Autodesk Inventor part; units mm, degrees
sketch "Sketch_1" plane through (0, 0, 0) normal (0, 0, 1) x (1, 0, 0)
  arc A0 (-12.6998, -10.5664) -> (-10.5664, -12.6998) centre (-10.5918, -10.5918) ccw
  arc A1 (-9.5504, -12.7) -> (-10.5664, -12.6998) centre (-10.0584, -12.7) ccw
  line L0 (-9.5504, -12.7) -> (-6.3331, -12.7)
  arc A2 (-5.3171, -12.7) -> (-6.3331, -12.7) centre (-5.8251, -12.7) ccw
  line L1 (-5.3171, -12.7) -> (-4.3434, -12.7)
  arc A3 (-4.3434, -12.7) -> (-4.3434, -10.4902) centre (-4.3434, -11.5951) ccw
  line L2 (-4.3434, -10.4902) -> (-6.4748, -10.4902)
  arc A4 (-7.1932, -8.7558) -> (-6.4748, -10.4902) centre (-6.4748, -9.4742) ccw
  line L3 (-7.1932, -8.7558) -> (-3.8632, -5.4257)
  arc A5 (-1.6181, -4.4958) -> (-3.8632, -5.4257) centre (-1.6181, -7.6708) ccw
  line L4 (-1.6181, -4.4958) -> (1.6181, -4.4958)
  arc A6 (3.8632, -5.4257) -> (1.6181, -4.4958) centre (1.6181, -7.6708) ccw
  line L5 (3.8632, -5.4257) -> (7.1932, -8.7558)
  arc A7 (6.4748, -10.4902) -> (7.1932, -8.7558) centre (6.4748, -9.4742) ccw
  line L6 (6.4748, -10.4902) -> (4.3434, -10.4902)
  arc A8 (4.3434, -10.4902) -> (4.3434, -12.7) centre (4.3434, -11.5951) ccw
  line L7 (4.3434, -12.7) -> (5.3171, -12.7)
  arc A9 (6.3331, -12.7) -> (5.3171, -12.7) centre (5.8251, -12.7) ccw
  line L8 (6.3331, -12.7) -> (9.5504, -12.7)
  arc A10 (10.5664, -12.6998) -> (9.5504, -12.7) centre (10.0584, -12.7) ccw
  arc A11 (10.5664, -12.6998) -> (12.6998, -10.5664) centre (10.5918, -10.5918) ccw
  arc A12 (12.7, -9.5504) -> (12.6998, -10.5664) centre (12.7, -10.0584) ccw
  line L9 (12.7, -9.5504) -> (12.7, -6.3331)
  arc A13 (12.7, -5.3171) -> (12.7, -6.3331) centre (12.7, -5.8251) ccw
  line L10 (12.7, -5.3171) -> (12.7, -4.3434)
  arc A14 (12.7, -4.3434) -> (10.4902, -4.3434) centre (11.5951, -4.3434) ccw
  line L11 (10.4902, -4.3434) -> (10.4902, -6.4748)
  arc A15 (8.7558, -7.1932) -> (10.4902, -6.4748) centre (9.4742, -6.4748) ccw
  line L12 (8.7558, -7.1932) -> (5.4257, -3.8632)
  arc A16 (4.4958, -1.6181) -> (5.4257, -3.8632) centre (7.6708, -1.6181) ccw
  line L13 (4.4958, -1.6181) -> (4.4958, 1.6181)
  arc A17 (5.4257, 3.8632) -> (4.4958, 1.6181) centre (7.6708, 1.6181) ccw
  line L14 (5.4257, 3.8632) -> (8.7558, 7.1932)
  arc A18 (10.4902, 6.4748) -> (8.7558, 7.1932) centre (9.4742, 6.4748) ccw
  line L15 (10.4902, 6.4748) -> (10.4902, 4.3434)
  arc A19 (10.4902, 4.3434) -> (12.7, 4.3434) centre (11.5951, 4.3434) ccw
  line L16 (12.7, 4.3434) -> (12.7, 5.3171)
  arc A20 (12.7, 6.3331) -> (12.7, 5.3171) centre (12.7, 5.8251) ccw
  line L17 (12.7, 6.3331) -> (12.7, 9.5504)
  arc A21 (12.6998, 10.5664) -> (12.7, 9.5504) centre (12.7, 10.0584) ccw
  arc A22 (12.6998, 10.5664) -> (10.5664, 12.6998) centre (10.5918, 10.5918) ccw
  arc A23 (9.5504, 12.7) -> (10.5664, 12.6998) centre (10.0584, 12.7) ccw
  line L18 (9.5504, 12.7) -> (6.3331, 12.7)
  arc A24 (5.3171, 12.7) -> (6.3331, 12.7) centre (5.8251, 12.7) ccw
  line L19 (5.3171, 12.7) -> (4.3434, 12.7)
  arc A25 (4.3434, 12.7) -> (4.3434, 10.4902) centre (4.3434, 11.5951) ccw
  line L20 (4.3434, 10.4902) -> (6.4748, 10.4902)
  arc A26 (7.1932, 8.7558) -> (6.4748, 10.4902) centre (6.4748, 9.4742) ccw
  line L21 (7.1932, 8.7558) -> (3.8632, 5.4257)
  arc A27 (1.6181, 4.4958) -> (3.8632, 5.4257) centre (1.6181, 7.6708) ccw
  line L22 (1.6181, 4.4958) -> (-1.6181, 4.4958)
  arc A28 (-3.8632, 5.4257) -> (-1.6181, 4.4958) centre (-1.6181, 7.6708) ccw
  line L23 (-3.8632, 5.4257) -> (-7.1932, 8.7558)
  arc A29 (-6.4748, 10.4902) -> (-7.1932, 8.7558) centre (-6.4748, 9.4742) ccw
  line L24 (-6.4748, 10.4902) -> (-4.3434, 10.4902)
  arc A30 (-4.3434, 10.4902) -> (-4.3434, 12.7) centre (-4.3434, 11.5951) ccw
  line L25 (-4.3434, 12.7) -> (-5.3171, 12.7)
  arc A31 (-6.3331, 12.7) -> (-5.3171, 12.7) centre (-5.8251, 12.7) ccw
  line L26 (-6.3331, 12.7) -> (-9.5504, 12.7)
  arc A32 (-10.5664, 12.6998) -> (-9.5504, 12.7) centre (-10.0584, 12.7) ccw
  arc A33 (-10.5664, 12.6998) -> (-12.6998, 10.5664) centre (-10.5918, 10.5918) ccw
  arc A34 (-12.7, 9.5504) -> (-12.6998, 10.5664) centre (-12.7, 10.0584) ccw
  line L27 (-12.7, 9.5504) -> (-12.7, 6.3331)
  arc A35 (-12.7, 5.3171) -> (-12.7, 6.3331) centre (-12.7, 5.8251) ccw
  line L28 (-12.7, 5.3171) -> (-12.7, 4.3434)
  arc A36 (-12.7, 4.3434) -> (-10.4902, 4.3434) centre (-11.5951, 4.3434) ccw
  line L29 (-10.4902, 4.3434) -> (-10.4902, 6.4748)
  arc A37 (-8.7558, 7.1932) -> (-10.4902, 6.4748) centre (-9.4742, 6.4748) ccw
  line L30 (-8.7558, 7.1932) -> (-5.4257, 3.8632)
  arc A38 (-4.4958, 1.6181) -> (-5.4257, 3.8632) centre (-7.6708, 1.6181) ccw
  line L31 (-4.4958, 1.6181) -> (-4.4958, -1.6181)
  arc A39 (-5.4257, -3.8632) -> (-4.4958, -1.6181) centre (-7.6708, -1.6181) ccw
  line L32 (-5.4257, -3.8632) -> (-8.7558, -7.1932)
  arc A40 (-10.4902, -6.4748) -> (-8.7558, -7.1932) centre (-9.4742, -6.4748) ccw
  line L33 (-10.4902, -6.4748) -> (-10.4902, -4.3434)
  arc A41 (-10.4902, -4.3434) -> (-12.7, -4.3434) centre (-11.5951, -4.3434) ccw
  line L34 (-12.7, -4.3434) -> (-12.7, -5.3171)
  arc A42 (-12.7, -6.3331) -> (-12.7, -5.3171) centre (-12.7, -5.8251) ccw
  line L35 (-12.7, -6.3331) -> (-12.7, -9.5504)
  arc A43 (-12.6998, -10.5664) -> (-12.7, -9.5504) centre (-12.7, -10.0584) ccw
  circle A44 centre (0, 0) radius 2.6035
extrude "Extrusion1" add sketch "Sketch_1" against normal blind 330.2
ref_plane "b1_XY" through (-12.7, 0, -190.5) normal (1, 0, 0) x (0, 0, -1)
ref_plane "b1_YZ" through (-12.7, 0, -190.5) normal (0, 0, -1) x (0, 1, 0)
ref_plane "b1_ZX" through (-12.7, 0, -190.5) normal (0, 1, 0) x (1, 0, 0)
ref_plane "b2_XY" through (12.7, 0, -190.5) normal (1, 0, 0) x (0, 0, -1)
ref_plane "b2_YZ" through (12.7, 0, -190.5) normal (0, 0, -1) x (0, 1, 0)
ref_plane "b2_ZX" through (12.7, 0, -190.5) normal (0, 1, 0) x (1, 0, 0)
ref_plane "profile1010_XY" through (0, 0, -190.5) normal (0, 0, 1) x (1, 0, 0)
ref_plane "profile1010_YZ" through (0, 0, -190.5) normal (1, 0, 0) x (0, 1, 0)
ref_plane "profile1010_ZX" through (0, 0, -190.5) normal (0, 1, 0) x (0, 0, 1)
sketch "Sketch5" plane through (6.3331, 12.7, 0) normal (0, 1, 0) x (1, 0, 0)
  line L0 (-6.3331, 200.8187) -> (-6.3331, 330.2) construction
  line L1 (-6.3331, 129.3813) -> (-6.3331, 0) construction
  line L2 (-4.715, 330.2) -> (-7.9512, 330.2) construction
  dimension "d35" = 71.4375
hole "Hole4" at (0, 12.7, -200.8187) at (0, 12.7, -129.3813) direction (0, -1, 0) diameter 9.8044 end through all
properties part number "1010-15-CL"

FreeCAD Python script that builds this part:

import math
import FreeCAD as App
import Part
import Sketcher
Q = App.Units.Quantity

doc = App.newDocument("Part")
body = doc.addObject("PartDesign::Body", "Body")

# Sketch on XY plane
sketch1 = body.newObject("Sketcher::SketchObject", "Sketch")
sketch1.AttachmentSupport = (doc.getObject("XY_Plane"), [""])
sketch1.MapMode = "FlatFace"
sketch1.addGeometry(Part.ArcOfCircle(Part.Circle(App.Vector(-12.7, -10.1, 0), App.Vector(0, 0, 1), 0.5), math.radians(-90), math.radians(90)), False)
sketch1.addGeometry(Part.ArcOfCircle(Part.Circle(App.Vector(-10.6, -10.6, 0), App.Vector(0, 0, 1), 2.1), math.radians(179), math.radians(271)), False)
sketch1.addGeometry(Part.ArcOfCircle(Part.Circle(App.Vector(-10.1, -12.7, 0), App.Vector(0, 0, 1), 0.5), math.radians(0), math.radians(180)), False)
sketch1.addGeometry(Part.LineSegment(App.Vector(-9.6, -12.7, 0), App.Vector(-6.3, -12.7, 0)), False)
sketch1.addGeometry(Part.ArcOfCircle(Part.Circle(App.Vector(-5.8, -12.7, 0), App.Vector(0, 0, 1), 0.5), math.radians(0), math.radians(180)), False)
sketch1.addGeometry(Part.LineSegment(App.Vector(-5.3, -12.7, 0), App.Vector(-4.3, -12.7, 0)), False)
sketch1.addGeometry(Part.ArcOfCircle(Part.Circle(App.Vector(-4.3, -11.6, 0), App.Vector(0, 0, 1), 1.1), math.radians(-90), math.radians(90)), False)
sketch1.addGeometry(Part.LineSegment(App.Vector(-4.3, -10.5, 0), App.Vector(-6.5, -10.5, 0)), False)
sketch1.addGeometry(Part.ArcOfCircle(Part.Circle(App.Vector(-6.5, -9.5, 0), App.Vector(0, 0, 1), 1), math.radians(135), math.radians(270)), False)
sketch1.addGeometry(Part.LineSegment(App.Vector(-7.2, -8.8, 0), App.Vector(-3.9, -5.4, 0)), False)
sketch1.addGeometry(Part.ArcOfCircle(Part.Circle(App.Vector(-1.6, -7.7, 0), App.Vector(0, 0, 1), 3.2), math.radians(90), math.radians(135)), False)
sketch1.addGeometry(Part.LineSegment(App.Vector(-1.6, -4.5, 0), App.Vector(1.6, -4.5, 0)), False)
sketch1.addGeometry(Part.ArcOfCircle(Part.Circle(App.Vector(1.6, -7.7, 0), App.Vector(0, 0, 1), 3.2), math.radians(45), math.radians(90)), False)
sketch1.addGeometry(Part.LineSegment(App.Vector(3.9, -5.4, 0), App.Vector(7.2, -8.8, 0)), False)
sketch1.addGeometry(Part.ArcOfCircle(Part.Circle(App.Vector(6.5, -9.5, 0), App.Vector(0, 0, 1), 1), math.radians(-90), math.radians(45)), False)
sketch1.addGeometry(Part.LineSegment(App.Vector(6.5, -10.5, 0), App.Vector(4.3, -10.5, 0)), False)
sketch1.addGeometry(Part.ArcOfCircle(Part.Circle(App.Vector(4.3, -11.6, 0), App.Vector(0, 0, 1), 1.1), math.radians(90), math.radians(270)), False)
sketch1.addGeometry(Part.LineSegment(App.Vector(4.3, -12.7, 0), App.Vector(5.3, -12.7, 0)), False)
sketch1.addGeometry(Part.ArcOfCircle(Part.Circle(App.Vector(5.8, -12.7, 0), App.Vector(0, 0, 1), 0.5), math.radians(0), math.radians(180)), False)
sketch1.addGeometry(Part.LineSegment(App.Vector(6.3, -12.7, 0), App.Vector(9.6, -12.7, 0)), False)
sketch1.addGeometry(Part.ArcOfCircle(Part.Circle(App.Vector(10.1, -12.7, 0), App.Vector(0, 0, 1), 0.5), math.radians(0), math.radians(180)), False)
sketch1.addGeometry(Part.ArcOfCircle(Part.Circle(App.Vector(10.6, -10.6, 0), App.Vector(0, 0, 1), 2.1), math.radians(-91), math.radians(1)), False)
sketch1.addGeometry(Part.ArcOfCircle(Part.Circle(App.Vector(12.7, -10.1, 0), App.Vector(0, 0, 1), 0.5), math.radians(90), math.radians(270)), False)
sketch1.addGeometry(Part.LineSegment(App.Vector(12.7, -9.6, 0), App.Vector(12.7, -6.3, 0)), False)
sketch1.addGeometry(Part.ArcOfCircle(Part.Circle(App.Vector(12.7, -5.8, 0), App.Vector(0, 0, 1), 0.5), math.radians(90), math.radians(270)), False)
sketch1.addGeometry(Part.LineSegment(App.Vector(12.7, -5.3, 0), App.Vector(12.7, -4.3, 0)), False)
sketch1.addGeometry(Part.ArcOfCircle(Part.Circle(App.Vector(11.6, -4.3, 0), App.Vector(0, 0, 1), 1.1), math.radians(0), math.radians(180)), False)
sketch1.addGeometry(Part.LineSegment(App.Vector(10.5, -4.3, 0), App.Vector(10.5, -6.5, 0)), False)
sketch1.addGeometry(Part.ArcOfCircle(Part.Circle(App.Vector(9.5, -6.5, 0), App.Vector(0, 0, 1), 1), math.radians(-135), math.radians(0)), False)
sketch1.addGeometry(Part.LineSegment(App.Vector(8.8, -7.2, 0), App.Vector(5.4, -3.9, 0)), False)
sketch1.addGeometry(Part.ArcOfCircle(Part.Circle(App.Vector(7.7, -1.6, 0), App.Vector(0, 0, 1), 3.2), math.radians(180), math.radians(225)), False)
sketch1.addGeometry(Part.LineSegment(App.Vector(4.5, -1.6, 0), App.Vector(4.5, 1.6, 0)), False)
sketch1.addGeometry(Part.ArcOfCircle(Part.Circle(App.Vector(7.7, 1.6, 0), App.Vector(0, 0, 1), 3.2), math.radians(135), math.radians(180)), False)
sketch1.addGeometry(Part.LineSegment(App.Vector(5.4, 3.9, 0), App.Vector(8.8, 7.2, 0)), False)
sketch1.addGeometry(Part.ArcOfCircle(Part.Circle(App.Vector(9.5, 6.5, 0), App.Vector(0, 0, 1), 1), math.radians(0), math.radians(135)), False)
sketch1.addGeometry(Part.LineSegment(App.Vector(10.5, 6.5, 0), App.Vector(10.5, 4.3, 0)), False)
sketch1.addGeometry(Part.ArcOfCircle(Part.Circle(App.Vector(11.6, 4.3, 0), App.Vector(0, 0, 1), 1.1), math.radians(180), math.radians(360)), False)
sketch1.addGeometry(Part.LineSegment(App.Vector(12.7, 4.3, 0), App.Vector(12.7, 5.3, 0)), False)
sketch1.addGeometry(Part.ArcOfCircle(Part.Circle(App.Vector(12.7, 5.8, 0), App.Vector(0, 0, 1), 0.5), math.radians(90), math.radians(270)), False)
sketch1.addGeometry(Part.LineSegment(App.Vector(12.7, 6.3, 0), App.Vector(12.7, 9.6, 0)), False)
sketch1.addGeometry(Part.ArcOfCircle(Part.Circle(App.Vector(12.7, 10.1, 0), App.Vector(0, 0, 1), 0.5), math.radians(90), math.radians(270)), False)
sketch1.addGeometry(Part.ArcOfCircle(Part.Circle(App.Vector(10.6, 10.6, 0), App.Vector(0, 0, 1), 2.1), math.radians(-1), math.radians(91)), False)
sketch1.addGeometry(Part.ArcOfCircle(Part.Circle(App.Vector(10.1, 12.7, 0), App.Vector(0, 0, 1), 0.5), math.radians(180), math.radians(360)), False)
sketch1.addGeometry(Part.LineSegment(App.Vector(9.6, 12.7, 0), App.Vector(6.3, 12.7, 0)), False)
sketch1.addGeometry(Part.ArcOfCircle(Part.Circle(App.Vector(5.8, 12.7, 0), App.Vector(0, 0, 1), 0.5), math.radians(180), math.radians(360)), False)
sketch1.addGeometry(Part.LineSegment(App.Vector(5.3, 12.7, 0), App.Vector(4.3, 12.7, 0)), False)
sketch1.addGeometry(Part.ArcOfCircle(Part.Circle(App.Vector(4.3, 11.6, 0), App.Vector(0, 0, 1), 1.1), math.radians(90), math.radians(270)), False)
sketch1.addGeometry(Part.LineSegment(App.Vector(4.3, 10.5, 0), App.Vector(6.5, 10.5, 0)), False)
sketch1.addGeometry(Part.ArcOfCircle(Part.Circle(App.Vector(6.5, 9.5, 0), App.Vector(0, 0, 1), 1), math.radians(-45), math.radians(90)), False)
sketch1.addGeometry(Part.LineSegment(App.Vector(7.2, 8.8, 0), App.Vector(3.9, 5.4, 0)), False)
sketch1.addGeometry(Part.ArcOfCircle(Part.Circle(App.Vector(1.6, 7.7, 0), App.Vector(0, 0, 1), 3.2), math.radians(-90), math.radians(-45)), False)
sketch1.addGeometry(Part.LineSegment(App.Vector(1.6, 4.5, 0), App.Vector(-1.6, 4.5, 0)), False)
sketch1.addGeometry(Part.ArcOfCircle(Part.Circle(App.Vector(-1.6, 7.7, 0), App.Vector(0, 0, 1), 3.2), math.radians(-135), math.radians(-90)), False)
sketch1.addGeometry(Part.LineSegment(App.Vector(-3.9, 5.4, 0), App.Vector(-7.2, 8.8, 0)), False)
sketch1.addGeometry(Part.ArcOfCircle(Part.Circle(App.Vector(-6.5, 9.5, 0), App.Vector(0, 0, 1), 1), math.radians(90), math.radians(225)), False)
sketch1.addGeometry(Part.LineSegment(App.Vector(-6.5, 10.5, 0), App.Vector(-4.3, 10.5, 0)), False)
sketch1.addGeometry(Part.ArcOfCircle(Part.Circle(App.Vector(-4.3, 11.6, 0), App.Vector(0, 0, 1), 1.1), math.radians(-90), math.radians(90)), False)
sketch1.addGeometry(Part.LineSegment(App.Vector(-4.3, 12.7, 0), App.Vector(-5.3, 12.7, 0)), False)
sketch1.addGeometry(Part.ArcOfCircle(Part.Circle(App.Vector(-5.8, 12.7, 0), App.Vector(0, 0, 1), 0.5), math.radians(180), math.radians(360)), False)
sketch1.addGeometry(Part.LineSegment(App.Vector(-6.3, 12.7, 0), App.Vector(-9.6, 12.7, 0)), False)
sketch1.addGeometry(Part.ArcOfCircle(Part.Circle(App.Vector(-10.1, 12.7, 0), App.Vector(0, 0, 1), 0.5), math.radians(-180), math.radians(0)), False)
sketch1.addGeometry(Part.ArcOfCircle(Part.Circle(App.Vector(-10.6, 10.6, 0), App.Vector(0, 0, 1), 2.1), math.radians(89), math.radians(181)), False)
sketch1.addGeometry(Part.ArcOfCircle(Part.Circle(App.Vector(-12.7, 10.1, 0), App.Vector(0, 0, 1), 0.5), math.radians(-90), math.radians(90)), False)
sketch1.addGeometry(Part.LineSegment(App.Vector(-12.7, 9.6, 0), App.Vector(-12.7, 6.3, 0)), False)
sketch1.addGeometry(Part.ArcOfCircle(Part.Circle(App.Vector(-12.7, 5.8, 0), App.Vector(0, 0, 1), 0.5), math.radians(-90), math.radians(90)), False)
sketch1.addGeometry(Part.LineSegment(App.Vector(-12.7, 5.3, 0), App.Vector(-12.7, 4.3, 0)), False)
sketch1.addGeometry(Part.ArcOfCircle(Part.Circle(App.Vector(-11.6, 4.3, 0), App.Vector(0, 0, 1), 1.1), math.radians(180), math.radians(360)), False)
sketch1.addGeometry(Part.LineSegment(App.Vector(-10.5, 4.3, 0), App.Vector(-10.5, 6.5, 0)), False)
sketch1.addGeometry(Part.ArcOfCircle(Part.Circle(App.Vector(-9.5, 6.5, 0), App.Vector(0, 0, 1), 1), math.radians(45), math.radians(180)), False)
sketch1.addGeometry(Part.LineSegment(App.Vector(-8.8, 7.2, 0), App.Vector(-5.4, 3.9, 0)), False)
sketch1.addGeometry(Part.ArcOfCircle(Part.Circle(App.Vector(-7.7, 1.6, 0), App.Vector(0, 0, 1), 3.2), math.radians(0), math.radians(45)), False)
sketch1.addGeometry(Part.LineSegment(App.Vector(-4.5, 1.6, 0), App.Vector(-4.5, -1.6, 0)), False)
sketch1.addGeometry(Part.ArcOfCircle(Part.Circle(App.Vector(-7.7, -1.6, 0), App.Vector(0, 0, 1), 3.2), math.radians(-45), math.radians(0)), False)
sketch1.addGeometry(Part.LineSegment(App.Vector(-5.4, -3.9, 0), App.Vector(-8.8, -7.2, 0)), False)
sketch1.addGeometry(Part.ArcOfCircle(Part.Circle(App.Vector(-9.5, -6.5, 0), App.Vector(0, 0, 1), 1), math.radians(180), math.radians(315)), False)
sketch1.addGeometry(Part.LineSegment(App.Vector(-10.5, -6.5, 0), App.Vector(-10.5, -4.3, 0)), False)
sketch1.addGeometry(Part.ArcOfCircle(Part.Circle(App.Vector(-11.6, -4.3, 0), App.Vector(0, 0, 1), 1.1), math.radians(0), math.radians(180)), False)
sketch1.addGeometry(Part.LineSegment(App.Vector(-12.7, -4.3, 0), App.Vector(-12.7, -5.3, 0)), False)
sketch1.addGeometry(Part.ArcOfCircle(Part.Circle(App.Vector(-12.7, -5.8, 0), App.Vector(0, 0, 1), 0.5), math.radians(-90), math.radians(90)), False)
sketch1.addGeometry(Part.LineSegment(App.Vector(-12.7, -6.3, 0), App.Vector(-12.7, -9.6, 0)), False)
sketch1.addGeometry(Part.Circle(App.Vector(0, 0, 0), App.Vector(0, 0, 1), 2.6), False)
sketch1.addConstraint(Sketcher.Constraint("Coincident", 0, 1, 1, 1))
sketch1.addConstraint(Sketcher.Constraint("Coincident", 1, 2, 2, 2))
sketch1.addConstraint(Sketcher.Constraint("Coincident", 2, 1, 3, 1))
sketch1.addConstraint(Sketcher.Constraint("Coincident", 3, 2, 4, 2))
sketch1.addConstraint(Sketcher.Constraint("Coincident", 4, 1, 5, 1))
sketch1.addConstraint(Sketcher.Constraint("Tangent", 5, 2, 6, 1))
sketch1.addConstraint(Sketcher.Constraint("Tangent", 6, 2, 7, 1))
sketch1.addConstraint(Sketcher.Constraint("Tangent", 7, 2, 8, 2))
sketch1.addConstraint(Sketcher.Constraint("Tangent", 8, 1, 9, 1))
sketch1.addConstraint(Sketcher.Constraint("Tangent", 9, 2, 10, 2))
sketch1.addConstraint(Sketcher.Constraint("Tangent", 10, 1, 11, 1))
sketch1.addConstraint(Sketcher.Constraint("Tangent", 11, 2, 12, 2))
sketch1.addConstraint(Sketcher.Constraint("Tangent", 12, 1, 13, 1))
sketch1.addConstraint(Sketcher.Constraint("Tangent", 13, 2, 14, 2))
sketch1.addConstraint(Sketcher.Constraint("Tangent", 14, 1, 15, 1))
sketch1.addConstraint(Sketcher.Constraint("Tangent", 15, 2, 16, 1))
sketch1.addConstraint(Sketcher.Constraint("Tangent", 16, 2, 17, 1))
sketch1.addConstraint(Sketcher.Constraint("Coincident", 17, 2, 18, 2))
sketch1.addConstraint(Sketcher.Constraint("Coincident", 18, 1, 19, 1))
sketch1.addConstraint(Sketcher.Constraint("Coincident", 19, 2, 20, 2))
sketch1.addConstraint(Sketcher.Constraint("Coincident", 20, 1, 21, 1))
sketch1.addConstraint(Sketcher.Constraint("Coincident", 21, 2, 22, 2))
sketch1.addConstraint(Sketcher.Constraint("Coincident", 22, 1, 23, 1))
sketch1.addConstraint(Sketcher.Constraint("Coincident", 23, 2, 24, 2))
sketch1.addConstraint(Sketcher.Constraint("Coincident", 24, 1, 25, 1))
sketch1.addConstraint(Sketcher.Constraint("Tangent", 25, 2, 26, 1))
sketch1.addConstraint(Sketcher.Constraint("Tangent", 26, 2, 27, 1))
sketch1.addConstraint(Sketcher.Constraint("Tangent", 27, 2, 28, 2))
sketch1.addConstraint(Sketcher.Constraint("Tangent", 28, 1, 29, 1))
sketch1.addConstraint(Sketcher.Constraint("Tangent", 29, 2, 30, 2))
sketch1.addConstraint(Sketcher.Constraint("Tangent", 30, 1, 31, 1))
sketch1.addConstraint(Sketcher.Constraint("Tangent", 31, 2, 32, 2))
sketch1.addConstraint(Sketcher.Constraint("Tangent", 32, 1, 33, 1))
sketch1.addConstraint(Sketcher.Constraint("Tangent", 33, 2, 34, 2))
sketch1.addConstraint(Sketcher.Constraint("Tangent", 34, 1, 35, 1))
sketch1.addConstraint(Sketcher.Constraint("Tangent", 35, 2, 36, 1))
sketch1.addConstraint(Sketcher.Constraint("Tangent", 36, 2, 37, 1))
sketch1.addConstraint(Sketcher.Constraint("Coincident", 37, 2, 38, 2))
sketch1.addConstraint(Sketcher.Constraint("Coincident", 38, 1, 39, 1))
sketch1.addConstraint(Sketcher.Constraint("Coincident", 39, 2, 40, 2))
sketch1.addConstraint(Sketcher.Constraint("Coincident", 40, 1, 41, 1))
sketch1.addConstraint(Sketcher.Constraint("Coincident", 41, 2, 42, 2))
sketch1.addConstraint(Sketcher.Constraint("Coincident", 42, 1, 43, 1))
sketch1.addConstraint(Sketcher.Constraint("Coincident", 43, 2, 44, 2))
sketch1.addConstraint(Sketcher.Constraint("Coincident", 44, 1, 45, 1))
sketch1.addConstraint(Sketcher.Constraint("Tangent", 45, 2, 46, 1))
sketch1.addConstraint(Sketcher.Constraint("Tangent", 46, 2, 47, 1))
sketch1.addConstraint(Sketcher.Constraint("Tangent", 47, 2, 48, 2))
sketch1.addConstraint(Sketcher.Constraint("Tangent", 48, 1, 49, 1))
sketch1.addConstraint(Sketcher.Constraint("Tangent", 49, 2, 50, 2))
sketch1.addConstraint(Sketcher.Constraint("Tangent", 50, 1, 51, 1))
sketch1.addConstraint(Sketcher.Constraint("Tangent", 51, 2, 52, 2))
sketch1.addConstraint(Sketcher.Constraint("Tangent", 52, 1, 53, 1))
sketch1.addConstraint(Sketcher.Constraint("Tangent", 53, 2, 54, 2))
sketch1.addConstraint(Sketcher.Constraint("Tangent", 54, 1, 55, 1))
sketch1.addConstraint(Sketcher.Constraint("Tangent", 55, 2, 56, 1))
sketch1.addConstraint(Sketcher.Constraint("Tangent", 56, 2, 57, 1))
sketch1.addConstraint(Sketcher.Constraint("Coincident", 57, 2, 58, 2))
sketch1.addConstraint(Sketcher.Constraint("Coincident", 58, 1, 59, 1))
sketch1.addConstraint(Sketcher.Constraint("Coincident", 59, 2, 60, 2))
sketch1.addConstraint(Sketcher.Constraint("Coincident", 60, 1, 61, 1))
sketch1.addConstraint(Sketcher.Constraint("Coincident", 61, 2, 62, 2))
sketch1.addConstraint(Sketcher.Constraint("Coincident", 62, 1, 63, 1))
sketch1.addConstraint(Sketcher.Constraint("Coincident", 63, 2, 64, 2))
sketch1.addConstraint(Sketcher.Constraint("Coincident", 64, 1, 65, 1))
sketch1.addConstraint(Sketcher.Constraint("Tangent", 65, 2, 66, 1))
sketch1.addConstraint(Sketcher.Constraint("Tangent", 66, 2, 67, 1))
sketch1.addConstraint(Sketcher.Constraint("Tangent", 67, 2, 68, 2))
sketch1.addConstraint(Sketcher.Constraint("Tangent", 68, 1, 69, 1))
sketch1.addConstraint(Sketcher.Constraint("Tangent", 69, 2, 70, 2))
sketch1.addConstraint(Sketcher.Constraint("Tangent", 70, 1, 71, 1))
sketch1.addConstraint(Sketcher.Constraint("Tangent", 71, 2, 72, 2))
sketch1.addConstraint(Sketcher.Constraint("Tangent", 72, 1, 73, 1))
sketch1.addConstraint(Sketcher.Constraint("Tangent", 73, 2, 74, 2))
sketch1.addConstraint(Sketcher.Constraint("Tangent", 74, 1, 75, 1))
sketch1.addConstraint(Sketcher.Constraint("Tangent", 75, 2, 76, 1))
sketch1.addConstraint(Sketcher.Constraint("Tangent", 76, 2, 77, 1))
sketch1.addConstraint(Sketcher.Constraint("Coincident", 77, 2, 78, 2))
sketch1.addConstraint(Sketcher.Constraint("Coincident", 78, 1, 79, 1))
sketch1.addConstraint(Sketcher.Constraint("Coincident", 79, 2, 0, 2))
sketch1.addConstraint(Sketcher.Constraint("Horizontal", 3))
sketch1.addConstraint(Sketcher.Constraint("Horizontal", 5))
sketch1.addConstraint(Sketcher.Constraint("Horizontal", 7))
sketch1.addConstraint(Sketcher.Constraint("Horizontal", 11))
sketch1.addConstraint(Sketcher.Constraint("Horizontal", 15))
sketch1.addConstraint(Sketcher.Constraint("Horizontal", 17))
sketch1.addConstraint(Sketcher.Constraint("Horizontal", 19))
sketch1.addConstraint(Sketcher.Constraint("Vertical", 23))
sketch1.addConstraint(Sketcher.Constraint("Vertical", 25))
sketch1.addConstraint(Sketcher.Constraint("Vertical", 27))
sketch1.addConstraint(Sketcher.Constraint("Vertical", 31))
sketch1.addConstraint(Sketcher.Constraint("Vertical", 35))
sketch1.addConstraint(Sketcher.Constraint("Vertical", 37))
sketch1.addConstraint(Sketcher.Constraint("Vertical", 39))
sketch1.addConstraint(Sketcher.Constraint("Horizontal", 43))
sketch1.addConstraint(Sketcher.Constraint("Horizontal", 45))
sketch1.addConstraint(Sketcher.Constraint("Horizontal", 47))
sketch1.addConstraint(Sketcher.Constraint("Horizontal", 51))
sketch1.addConstraint(Sketcher.Constraint("Horizontal", 55))
sketch1.addConstraint(Sketcher.Constraint("Horizontal", 57))
sketch1.addConstraint(Sketcher.Constraint("Horizontal", 59))
sketch1.addConstraint(Sketcher.Constraint("Vertical", 63))
sketch1.addConstraint(Sketcher.Constraint("Vertical", 65))
sketch1.addConstraint(Sketcher.Constraint("Vertical", 67))
sketch1.addConstraint(Sketcher.Constraint("Vertical", 71))
sketch1.addConstraint(Sketcher.Constraint("Vertical", 75))
sketch1.addConstraint(Sketcher.Constraint("Vertical", 77))
sketch1.addConstraint(Sketcher.Constraint("Vertical", 79))
sketch1.addConstraint(Sketcher.Constraint("Coincident", 80, 3, -1, 1))
sketch1.addConstraint(Sketcher.Constraint("Equal", 0, 2))
sketch1.addConstraint(Sketcher.Constraint("Equal", 2, 4))
sketch1.addConstraint(Sketcher.Constraint("Equal", 10, 12))
sketch1.addConstraint(Sketcher.Constraint("Equal", 8, 14))
sketch1.addConstraint(Sketcher.Constraint("Equal", 6, 16))
sketch1.addConstraint(Sketcher.Constraint("Equal", 4, 18))
sketch1.addConstraint(Sketcher.Constraint("Equal", 18, 20))
sketch1.addConstraint(Sketcher.Constraint("Equal", 1, 21))
sketch1.addConstraint(Sketcher.Constraint("Equal", 20, 22))
sketch1.addConstraint(Sketcher.Constraint("Equal", 22, 24))
sketch1.addConstraint(Sketcher.Constraint("Equal", 16, 26))
sketch1.addConstraint(Sketcher.Constraint("Equal", 14, 28))
sketch1.addConstraint(Sketcher.Constraint("Equal", 12, 30))
sketch1.addConstraint(Sketcher.Constraint("Equal", 30, 32))
sketch1.addConstraint(Sketcher.Constraint("Equal", 28, 34))
sketch1.addConstraint(Sketcher.Constraint("Equal", 26, 36))
sketch1.addConstraint(Sketcher.Constraint("Equal", 24, 38))
sketch1.addConstraint(Sketcher.Constraint("Equal", 38, 40))
sketch1.addConstraint(Sketcher.Constraint("Equal", 21, 41))
sketch1.addConstraint(Sketcher.Constraint("Equal", 40, 42))
sketch1.addConstraint(Sketcher.Constraint("Equal", 42, 44))
sketch1.addConstraint(Sketcher.Constraint("Equal", 36, 46))
sketch1.addConstraint(Sketcher.Constraint("Equal", 34, 48))
sketch1.addConstraint(Sketcher.Constraint("Equal", 32, 50))
sketch1.addConstraint(Sketcher.Constraint("Equal", 50, 52))
sketch1.addConstraint(Sketcher.Constraint("Equal", 48, 54))
sketch1.addConstraint(Sketcher.Constraint("Equal", 46, 56))
sketch1.addConstraint(Sketcher.Constraint("Equal", 44, 58))
sketch1.addConstraint(Sketcher.Constraint("Equal", 58, 60))
sketch1.addConstraint(Sketcher.Constraint("Equal", 41, 61))
sketch1.addConstraint(Sketcher.Constraint("Equal", 60, 62))
sketch1.addConstraint(Sketcher.Constraint("Equal", 62, 64))
sketch1.addConstraint(Sketcher.Constraint("Equal", 56, 66))
sketch1.addConstraint(Sketcher.Constraint("Equal", 54, 68))
sketch1.addConstraint(Sketcher.Constraint("Equal", 52, 70))
sketch1.addConstraint(Sketcher.Constraint("Equal", 70, 72))
sketch1.addConstraint(Sketcher.Constraint("Equal", 68, 74))
sketch1.addConstraint(Sketcher.Constraint("Equal", 66, 76))
sketch1.addConstraint(Sketcher.Constraint("Equal", 64, 78))
sketch1.addConstraint(Sketcher.Constraint("Symmetric", 0, 3, 40, 3, -1, 1))
sketch1.addConstraint(Sketcher.Constraint("Symmetric", 1, 3, 41, 3, -1, 1))
sketch1.addConstraint(Sketcher.Constraint("Symmetric", 2, 3, 42, 3, -1, 1))
sketch1.addConstraint(Sketcher.Constraint("Symmetric", 4, 3, 44, 3, -1, 1))
sketch1.addConstraint(Sketcher.Constraint("Symmetric", 6, 3, 46, 3, -1, 1))
sketch1.addConstraint(Sketcher.Constraint("Symmetric", 10, 3, 50, 3, -1, 1))
sketch1.addConstraint(Sketcher.Constraint("Symmetric", 14, 3, 54, 3, -1, 1))
sketch1.addConstraint(Sketcher.Constraint("Symmetric", 18, 3, 58, 3, -1, 1))
sketch1.addConstraint(Sketcher.Constraint("Symmetric", 20, 3, 60, 3, -1, 1))
sketch1.addConstraint(Sketcher.Constraint("Symmetric", 21, 3, 61, 3, -1, 1))
sketch1.addConstraint(Sketcher.Constraint("Symmetric", 22, 3, 62, 3, -1, 1))
sketch1.addConstraint(Sketcher.Constraint("Symmetric", 24, 3, 64, 3, -1, 1))
sketch1.addConstraint(Sketcher.Constraint("Symmetric", 26, 3, 66, 3, -1, 1))
sketch1.addConstraint(Sketcher.Constraint("Symmetric", 30, 3, 70, 3, -1, 1))
sketch1.addConstraint(Sketcher.Constraint("Symmetric", 34, 3, 74, 3, -1, 1))
sketch1.addConstraint(Sketcher.Constraint("Symmetric", 38, 3, 78, 3, -1, 1))
sketch1.addConstraint(Sketcher.Constraint("Symmetric", 8, 3, 14, 3, -2))
sketch1.addConstraint(Sketcher.Constraint("Symmetric", 4, 3, 18, 3, -2))
sketch1.addConstraint(Sketcher.Constraint("Symmetric", 2, 3, 20, 3, -2))
sketch1.addConstraint(Sketcher.Constraint("Symmetric", 1, 3, 21, 3, -2))
sketch1.addConstraint(Sketcher.Constraint("Symmetric", 0, 3, 22, 3, -2))
sketch1.addConstraint(Sketcher.Constraint("Symmetric", 38, 3, 64, 3, -2))
sketch1.addConstraint(Sketcher.Constraint("Symmetric", 36, 3, 66, 3, -2))
sketch1.addConstraint(Sketcher.Constraint("Symmetric", 49, 2, 52, 1, -2))
sketch1.addConstraint(Sketcher.Constraint("Symmetric", 33, 2, 68, 1, -2))
sketch1.addConstraint(Sketcher.Constraint("Symmetric", 29, 2, 72, 1, -2))
sketch1.addConstraint(Sketcher.Constraint("Perpendicular", 9, 13))
sketch1.addConstraint(Sketcher.Constraint("Parallel", 13, 29))
sketch1.addConstraint(Sketcher.Constraint("Perpendicular", 29, 33))
sketch1.addConstraint(Sketcher.Constraint("Horizontal", 2, 3, 4, 3))
sketch1.addConstraint(Sketcher.Constraint("Horizontal", 26, 3, 76, 3))
sketch1.addConstraint(Sketcher.Constraint("Horizontal", 20, 3, 1, 2))
sketch1.addConstraint(Sketcher.Constraint("Horizontal", 1, 2, 2, 1))
sketch1.addConstraint(Sketcher.Constraint("Horizontal", 3, 2, 4, 1))
sketch1.addConstraint(Sketcher.Constraint("Horizontal", 17, 2, 18, 1))
sketch1.addConstraint(Sketcher.Constraint("Horizontal", 41, 2, 42, 1))
sketch1.addConstraint(Sketcher.Constraint("Horizontal", 57, 2, 58, 1))
sketch1.addConstraint(Sketcher.Constraint("Vertical", 22, 3, 24, 3))
sketch1.addConstraint(Sketcher.Constraint("Vertical", 16, 3, 46, 3))
sketch1.addConstraint(Sketcher.Constraint("Vertical", 6, 3, 56, 3))
sketch1.addConstraint(Sketcher.Constraint("Vertical", 78, 3, 0, 1))
sketch1.addConstraint(Sketcher.Constraint("Vertical", 21, 2, 22, 1))
sketch1.addConstraint(Sketcher.Constraint("Vertical", 23, 2, 24, 1))
sketch1.addConstraint(Sketcher.Constraint("Vertical", 37, 2, 38, 1))
sketch1.addConstraint(Sketcher.Constraint("Vertical", 61, 2, 62, 1))
sketch1.addConstraint(Sketcher.Constraint("Vertical", 77, 2, 78, 1))
sketch1.addConstraint(Sketcher.Constraint("Equal", 59, 23))
sketch1.addConstraint(Sketcher.Constraint("Equal", 57, 25))
sketch1.addConstraint(Sketcher.Constraint("Equal", 55, 27))
sketch1.addConstraint(Sketcher.Constraint("Equal", 51, 31))
sketch1.addConstraint(Sketcher.Constraint("Equal", 13, 29))
sketch1.addConstraint(Sketcher.Constraint("Radius", 0, Q("0.02 in")))
sketch1.addConstraint(Sketcher.Constraint("Radius", 8, Q("0.04 in")))
sketch1.addConstraint(Sketcher.Constraint("Diameter", 80, Q("0.205 in")))
sketch1.addConstraint(Sketcher.Constraint("Radius", 1, Q("0.083 in")))
sketch1.addConstraint(Sketcher.Constraint("Radius", 10, Q("0.125 in")))
sketch1.addConstraint(Sketcher.Constraint("DistanceX", 0, 3, -1, 1, Q("0.5 in")))
sketch1.addConstraint(Sketcher.Constraint("DistanceY", 2, 3, -1, 1, Q("0.5 in")))
sketch1.addConstraint(Sketcher.Constraint("Radius", 6, Q("0.0435 in")))
sketch1.addConstraint(Sketcher.Constraint("DistanceX", 11, 1, 11, 2, Q("0.1274 in")))
sketch1.addConstraint(Sketcher.Constraint("DistanceY", 0, 3, -1, 1, Q("0.396 in")))
sketch1.addConstraint(Sketcher.Constraint("DistanceX", 6, 3, -1, 1, Q("0.171 in")))
sketch1.addConstraint(Sketcher.Constraint("DistanceY", 10, 3, -1, 1, Q("0.302 in")))
sketch1.addConstraint(Sketcher.Constraint("DistanceX", 3, 1, 3, 2, 3.2173))
pad1 = body.newObject("PartDesign::Pad", "Pad")
pad1.Profile = sketch1
pad1.Length = Q("13 in")
pad1.Reversed = True

# Sketch on XZ plane
sketch2 = body.newObject("Sketcher::SketchObject", "Sketch001")
sketch2.AttachmentSupport = (doc.getObject("XZ_Plane"), [""])
sketch2.MapMode = "FlatFace"
sketch2.AttachmentOffset = App.Placement(App.Vector(0, 0, -0.5 * 25.4), App.Rotation())
sketch2.addGeometry(Part.Circle(App.Vector(0, -200.8, 0), App.Vector(0, 0, 1), 4.9), False)
sketch2.addGeometry(Part.Circle(App.Vector(0, -129.4, 0), App.Vector(0, 0, 1), 4.9), False)
sketch2.addConstraint(Sketcher.Constraint("Equal", 0, 1))
sketch2.addConstraint(Sketcher.Constraint("PointOnObject", 0, 3, -2))
sketch2.addConstraint(Sketcher.Constraint("PointOnObject", 1, 3, -2))
sketch2.addConstraint(Sketcher.Constraint("Diameter", 0, Q("0.386 in")))
sketch2.addConstraint(Sketcher.Constraint("DistanceY", 0, 3, -1, 1, Q("7.906248 in")))
sketch2.addConstraint(Sketcher.Constraint("DistanceY", 1, 3, -1, 1, Q("5.093752 in")))
doc.recompute()
hole = body.newObject("PartDesign::Hole", "Hole")
hole.Profile = sketch2
hole.ThreadType = "None"
hole.Diameter = Q("0.386 in")
hole.DepthType = "ThroughAll"
hole.Reversed = True

doc.recompute()
